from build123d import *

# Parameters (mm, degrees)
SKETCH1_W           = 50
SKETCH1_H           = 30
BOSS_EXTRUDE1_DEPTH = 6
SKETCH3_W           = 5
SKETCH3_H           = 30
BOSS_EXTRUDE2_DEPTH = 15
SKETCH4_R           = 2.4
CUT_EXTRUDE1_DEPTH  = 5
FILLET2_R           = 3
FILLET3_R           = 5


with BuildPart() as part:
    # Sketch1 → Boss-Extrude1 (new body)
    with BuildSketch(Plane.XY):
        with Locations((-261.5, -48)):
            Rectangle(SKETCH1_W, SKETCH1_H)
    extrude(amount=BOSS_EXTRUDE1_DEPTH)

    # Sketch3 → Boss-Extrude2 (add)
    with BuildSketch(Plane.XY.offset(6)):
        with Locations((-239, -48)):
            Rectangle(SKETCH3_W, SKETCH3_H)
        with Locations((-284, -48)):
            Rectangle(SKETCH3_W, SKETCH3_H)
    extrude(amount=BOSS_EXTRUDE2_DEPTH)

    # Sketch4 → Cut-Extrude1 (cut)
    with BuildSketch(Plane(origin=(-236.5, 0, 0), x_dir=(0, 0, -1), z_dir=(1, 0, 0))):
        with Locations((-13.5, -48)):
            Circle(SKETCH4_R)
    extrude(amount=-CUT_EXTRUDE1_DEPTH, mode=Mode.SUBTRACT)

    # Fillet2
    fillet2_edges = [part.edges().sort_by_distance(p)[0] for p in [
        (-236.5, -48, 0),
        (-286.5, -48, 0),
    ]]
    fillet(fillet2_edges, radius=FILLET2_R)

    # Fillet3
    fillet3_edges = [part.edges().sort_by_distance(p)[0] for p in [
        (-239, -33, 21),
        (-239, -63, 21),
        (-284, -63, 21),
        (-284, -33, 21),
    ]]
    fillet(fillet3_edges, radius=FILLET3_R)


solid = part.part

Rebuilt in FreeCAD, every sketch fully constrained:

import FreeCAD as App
import Part
import Sketcher

V = App.Vector
Q = App.Units.Quantity


def edges_at(feature, points):
    """Names of the edges that pass closest to the given points."""
    edges = feature.Shape.Edges
    near = lambda p: min(range(len(edges)), key=lambda i: edges[i].distToShape(Part.Vertex(*p))[0])
    return sorted({f"Edge{near(p) + 1}" for p in points})


def add_polygon(sketch, points):
    """Adds a closed chain of lines whose ends are joined by coincident constraints."""
    first, n = sketch.GeometryCount, len(points)
    for a, b in zip(points, points[1:] + points[:1]):
        sketch.addGeometry(Part.LineSegment(App.Vector(*a, 0), App.Vector(*b, 0)), False)
    for i in range(n):
        sketch.addConstraint(Sketcher.Constraint("Coincident", first + i, 2, first + (i + 1) % n, 1))

doc = App.newDocument("Part")
body = doc.addObject("PartDesign::Body", "Body")

# Sketch on XY plane
sketch1 = body.newObject("Sketcher::SketchObject", "Sketch")
sketch1.AttachmentSupport = (doc.getObject("XY_Plane"), [""])
sketch1.MapMode = "FlatFace"
add_polygon(sketch1, [(-286, -33), (-286, -63), (-236, -63), (-236, -33)])  # lines 0-3
sketch1.addConstraint(Sketcher.Constraint("Vertical", 0))
sketch1.addConstraint(Sketcher.Constraint("Horizontal", 1))
sketch1.addConstraint(Sketcher.Constraint("Vertical", 2))
sketch1.addConstraint(Sketcher.Constraint("Horizontal", 3))
sketch1.addConstraint(Sketcher.Constraint("DistanceX", 1, 1, 1, 2, Q("50 mm")))
sketch1.addConstraint(Sketcher.Constraint("DistanceY", 0, 2, 0, 1, Q("30 mm")))
sketch1.addConstraint(Sketcher.Constraint("DistanceY", 0, 2, -1, 1, Q("63 mm")))
sketch1.addConstraint(Sketcher.Constraint("DistanceX", 0, 2, -1, 1, Q("286.5 mm")))
pad1 = body.newObject("PartDesign::Pad", "Pad")
pad1.Profile = sketch1
pad1.Length = 6

# Sketch on XY plane
sketch2 = body.newObject("Sketcher::SketchObject", "Sketch001")
sketch2.AttachmentSupport = (doc.getObject("XY_Plane"), [""])
sketch2.MapMode = "FlatFace"
sketch2.AttachmentOffset = App.Placement(V(0, 0, 6), App.Rotation())
add_polygon(sketch2, [(-242, -33), (-242, -63), (-236, -63), (-236, -33)])  # lines 0-3
add_polygon(sketch2, [(-286, -33), (-286, -63), (-282, -63), (-282, -33)])  # lines 4-7
sketch2.addConstraint(Sketcher.Constraint("Vertical", 0))
sketch2.addConstraint(Sketcher.Constraint("Horizontal", 1))
sketch2.addConstraint(Sketcher.Constraint("Vertical", 2))
sketch2.addConstraint(Sketcher.Constraint("Horizontal", 3))
sketch2.addConstraint(Sketcher.Constraint("Vertical", 4))
sketch2.addConstraint(Sketcher.Constraint("Horizontal", 5))
sketch2.addConstraint(Sketcher.Constraint("Vertical", 6))
sketch2.addConstraint(Sketcher.Constraint("Horizontal", 7))
sketch2.addConstraint(Sketcher.Constraint("Horizontal", 1, 2, 4, 2))
sketch2.addConstraint(Sketcher.Constraint("Horizontal", 3, 2, 6, 2))
sketch2.addConstraint(Sketcher.Constraint("Equal", 3, 5))
sketch2.addConstraint(Sketcher.Constraint("DistanceX", 1, 1, 1, 2, Q("5 mm")))
sketch2.addConstraint(Sketcher.Constraint("DistanceY", 0, 2, 0, 1, Q("30 mm")))
sketch2.addConstraint(Sketcher.Constraint("DistanceY", 0, 2, -1, 1, Q("63 mm")))
sketch2.addConstraint(Sketcher.Constraint("DistanceX", 4, 2, 0, 2, Q("45 mm")))
sketch2.addConstraint(Sketcher.Constraint("DistanceX", 0, 2, -1, 1, Q("241.5 mm")))
pad2 = body.newObject("PartDesign::Pad", "Pad001")
pad2.Profile = sketch2
pad2.Length = 15

# Sketch on YZ plane
sketch3 = body.newObject("Sketcher::SketchObject", "Sketch002")
sketch3.AttachmentSupport = (doc.getObject("YZ_Plane"), [""])
sketch3.MapMode = "FlatFace"
sketch3.AttachmentOffset = App.Placement(V(0, 0, -236.5), App.Rotation())
sketch3.addGeometry(Part.Circle(V(-48, 13.5, 0), V(0, 0, 1), 2.4), False)
sketch3.addConstraint(Sketcher.Constraint("Diameter", 0, Q("4.8 mm")))
sketch3.addConstraint(Sketcher.Constraint("DistanceX", 0, 3, -1, 1, Q("48 mm")))
sketch3.addConstraint(Sketcher.Constraint("DistanceY", -1, 1, 0, 3, Q("13.5 mm")))
pocket1 = body.newObject("PartDesign::Pocket", "Pocket")
pocket1.Profile = sketch3
pocket1.Length = 5
doc.recompute()

fillet = body.newObject("PartDesign::Fillet", "Fillet")
fillet.Base = (pocket1, edges_at(pocket1, [(-236.5, -48, 0), (-286.5, -48, 0)]))
fillet.Radius = 3
doc.recompute()

fillet2 = body.newObject("PartDesign::Fillet", "Fillet001")
fillet2.Base = (fillet, edges_at(fillet, [
    (-239, -33, 21),
    (-239, -63, 21),
    (-284, -63, 21),
    (-284, -33, 21),
]))
fillet2.Radius = 5

doc.recompute()
